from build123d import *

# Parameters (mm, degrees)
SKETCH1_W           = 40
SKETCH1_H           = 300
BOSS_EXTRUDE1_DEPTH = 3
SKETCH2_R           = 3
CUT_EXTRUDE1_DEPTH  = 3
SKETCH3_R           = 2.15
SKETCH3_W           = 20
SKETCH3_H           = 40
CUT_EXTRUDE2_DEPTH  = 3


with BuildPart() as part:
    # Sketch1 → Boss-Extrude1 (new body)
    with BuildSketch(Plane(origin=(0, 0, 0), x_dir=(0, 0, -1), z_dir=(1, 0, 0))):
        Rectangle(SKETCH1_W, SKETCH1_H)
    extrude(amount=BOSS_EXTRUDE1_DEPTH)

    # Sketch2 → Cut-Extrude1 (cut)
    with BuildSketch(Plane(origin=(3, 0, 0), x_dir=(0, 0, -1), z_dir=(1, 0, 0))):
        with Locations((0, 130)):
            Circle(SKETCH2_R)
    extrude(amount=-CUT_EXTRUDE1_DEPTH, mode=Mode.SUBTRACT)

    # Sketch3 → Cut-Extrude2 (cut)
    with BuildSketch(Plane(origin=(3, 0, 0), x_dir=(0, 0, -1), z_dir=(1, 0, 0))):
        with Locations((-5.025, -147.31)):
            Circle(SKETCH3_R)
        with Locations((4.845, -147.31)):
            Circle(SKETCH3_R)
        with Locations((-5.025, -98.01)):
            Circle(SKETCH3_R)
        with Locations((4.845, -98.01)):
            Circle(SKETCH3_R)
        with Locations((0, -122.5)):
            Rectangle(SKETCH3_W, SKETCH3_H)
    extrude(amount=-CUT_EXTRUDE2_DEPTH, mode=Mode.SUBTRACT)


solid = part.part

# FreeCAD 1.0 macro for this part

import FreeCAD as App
import Part
import Sketcher
from FreeCAD import Vector
Q = App.Units.Quantity


def add_polygon(sketch, points):
    """Adds a closed chain of lines whose ends are joined by coincident constraints."""
    first, n = sketch.GeometryCount, len(points)
    for a, b in zip(points, points[1:] + points[:1]):
        sketch.addGeometry(Part.LineSegment(App.Vector(*a, 0), App.Vector(*b, 0)), False)
    for i in range(n):
        sketch.addConstraint(Sketcher.Constraint("Coincident", first + i, 2, first + (i + 1) % n, 1))

doc = App.newDocument("Part")
params = doc.addObject("Spreadsheet::Sheet", "Params")
for row, (alias, value) in enumerate([
    ("sketch1_width", "300 mm"),
    ("sketch1_height", "40 mm"),
    ("pad1_length", "3 mm"),
    ("sketch2_diameter", "6 mm"),
    ("pocket1_length", "3 mm"),
    ("sketch3_diameter", "4.3 mm"),
    ("sketch3_width", "40 mm"),
    ("sketch3_height", "20 mm"),
    ("pocket2_length", "3 mm"),
], start=1):
    params.set(f"A{row}", alias)
    params.set(f"B{row}", "=" + value)
    params.setAlias(f"B{row}", alias)

body = doc.addObject("PartDesign::Body", "Body")

sketch1 = body.newObject("Sketcher::SketchObject", "Sketch")
sketch1.AttachmentSupport = (doc.getObject("YZ_Plane"), [""])
sketch1.MapMode = "FlatFace"
add_polygon(sketch1, [(150, 20), (-150, 20), (-150, -20), (150, -20)])
sketch1.addConstraint([
    Sketcher.Constraint("Horizontal", 0),
    Sketcher.Constraint("Vertical", 1),
    Sketcher.Constraint("Horizontal", 2),
    Sketcher.Constraint("Vertical", 3),
    Sketcher.Constraint("Symmetric", 0, 2, 2, 2, -1, 1),
    Sketcher.Constraint("DistanceX", 0, 2, 0, 1, Q("300 mm")),
    Sketcher.Constraint("DistanceY", 1, 2, 1, 1, Q("40 mm")),
])
sketch1.setExpression("Constraints[9]", "Params.sketch1_width")
sketch1.setExpression("Constraints[10]", "Params.sketch1_height")
pad1 = body.newObject("PartDesign::Pad", "Pad")
pad1.Profile = sketch1
pad1.setExpression("Length", "Params.pad1_length")

sketch2 = body.newObject("Sketcher::SketchObject", "Sketch001")
sketch2.AttachmentSupport = (doc.getObject("YZ_Plane"), [""])
sketch2.MapMode = "FlatFace"
sketch2.AttachmentOffset = App.Placement(Vector(0, 0, 3), App.Rotation())
sketch2.addGeometry(Part.Circle(Vector(130, 0, 0), Vector(0, 0, 1), 3), False)
sketch2.addConstraint([
    Sketcher.Constraint("PointOnObject", 0, 3, -1),
    Sketcher.Constraint("Diameter", 0, Q("6 mm")),
    Sketcher.Constraint("DistanceX", -1, 1, 0, 3, Q("130 mm")),
])
sketch2.setExpression("Constraints[1]", "Params.sketch2_diameter")
pocket1 = body.newObject("PartDesign::Pocket", "Pocket")
pocket1.Profile = sketch2
pocket1.setExpression("Length", "Params.pocket1_length")

sketch3 = body.newObject("Sketcher::SketchObject", "Sketch002")
sketch3.AttachmentSupport = (doc.getObject("YZ_Plane"), [""])
sketch3.MapMode = "FlatFace"
sketch3.AttachmentOffset = App.Placement(Vector(0, 0, 3), App.Rotation())
sketch3.addGeometry(Part.Circle(Vector(-147.31, 5.025, 0), Vector(0, 0, 1), 2.15), False)
sketch3.addGeometry(Part.Circle(Vector(-147.31, -4.845, 0), Vector(0, 0, 1), 2.15), False)
sketch3.addGeometry(Part.Circle(Vector(-98.01, 5.025, 0), Vector(0, 0, 1), 2.15), False)
sketch3.addGeometry(Part.Circle(Vector(-98.01, -4.845, 0), Vector(0, 0, 1), 2.15), False)
add_polygon(sketch3, [(-102.5, 10), (-142.5, 10), (-142.5, -10), (-102.5, -10)])
sketch3.addConstraint([
    Sketcher.Constraint("Horizontal", 4),
    Sketcher.Constraint("Vertical", 5),
    Sketcher.Constraint("Horizontal", 6),
    Sketcher.Constraint("Vertical", 7),
    Sketcher.Constraint("Equal", 0, 1),
    Sketcher.Constraint("Equal", 1, 2),
    Sketcher.Constraint("Equal", 2, 3),
    Sketcher.Constraint("Horizontal", 0, 3, 2, 3),
    Sketcher.Constraint("Horizontal", 1, 3, 3, 3),
    Sketcher.Constraint("Vertical", 0, 3, 1, 3),
    Sketcher.Constraint("Vertical", 2, 3, 3, 3),
    Sketcher.Constraint("Diameter", 0, Q("4.3 mm")),
    Sketcher.Constraint("DistanceX", 4, 2, 4, 1, Q("40 mm")),
    Sketcher.Constraint("DistanceY", 5, 2, 5, 1, Q("20 mm")),
    Sketcher.Constraint("DistanceY", -1, 1, 4, 2, Q("10 mm")),
    Sketcher.Constraint("DistanceX", 4, 2, -1, 1, Q("142.5 mm")),
    Sketcher.Constraint("DistanceX", 0, 3, 2, 3, Q("49.3 mm")),
    Sketcher.Constraint("DistanceX", 0, 3, -1, 1, Q("147.31 mm")),
    Sketcher.Constraint("DistanceY", 1, 3, 0, 3, Q("9.87 mm")),
    Sketcher.Constraint("DistanceY", -1, 1, 0, 3, Q("5.025 mm")),
])
sketch3.setExpression("Constraints[15]", "Params.sketch3_diameter")
sketch3.setExpression("Constraints[16]", "Params.sketch3_width")
sketch3.setExpression("Constraints[17]", "Params.sketch3_height")
pocket2 = body.newObject("PartDesign::Pocket", "Pocket001")
pocket2.Profile = sketch3
pocket2.setExpression("Length", "Params.pocket2_length")

doc.recompute()
